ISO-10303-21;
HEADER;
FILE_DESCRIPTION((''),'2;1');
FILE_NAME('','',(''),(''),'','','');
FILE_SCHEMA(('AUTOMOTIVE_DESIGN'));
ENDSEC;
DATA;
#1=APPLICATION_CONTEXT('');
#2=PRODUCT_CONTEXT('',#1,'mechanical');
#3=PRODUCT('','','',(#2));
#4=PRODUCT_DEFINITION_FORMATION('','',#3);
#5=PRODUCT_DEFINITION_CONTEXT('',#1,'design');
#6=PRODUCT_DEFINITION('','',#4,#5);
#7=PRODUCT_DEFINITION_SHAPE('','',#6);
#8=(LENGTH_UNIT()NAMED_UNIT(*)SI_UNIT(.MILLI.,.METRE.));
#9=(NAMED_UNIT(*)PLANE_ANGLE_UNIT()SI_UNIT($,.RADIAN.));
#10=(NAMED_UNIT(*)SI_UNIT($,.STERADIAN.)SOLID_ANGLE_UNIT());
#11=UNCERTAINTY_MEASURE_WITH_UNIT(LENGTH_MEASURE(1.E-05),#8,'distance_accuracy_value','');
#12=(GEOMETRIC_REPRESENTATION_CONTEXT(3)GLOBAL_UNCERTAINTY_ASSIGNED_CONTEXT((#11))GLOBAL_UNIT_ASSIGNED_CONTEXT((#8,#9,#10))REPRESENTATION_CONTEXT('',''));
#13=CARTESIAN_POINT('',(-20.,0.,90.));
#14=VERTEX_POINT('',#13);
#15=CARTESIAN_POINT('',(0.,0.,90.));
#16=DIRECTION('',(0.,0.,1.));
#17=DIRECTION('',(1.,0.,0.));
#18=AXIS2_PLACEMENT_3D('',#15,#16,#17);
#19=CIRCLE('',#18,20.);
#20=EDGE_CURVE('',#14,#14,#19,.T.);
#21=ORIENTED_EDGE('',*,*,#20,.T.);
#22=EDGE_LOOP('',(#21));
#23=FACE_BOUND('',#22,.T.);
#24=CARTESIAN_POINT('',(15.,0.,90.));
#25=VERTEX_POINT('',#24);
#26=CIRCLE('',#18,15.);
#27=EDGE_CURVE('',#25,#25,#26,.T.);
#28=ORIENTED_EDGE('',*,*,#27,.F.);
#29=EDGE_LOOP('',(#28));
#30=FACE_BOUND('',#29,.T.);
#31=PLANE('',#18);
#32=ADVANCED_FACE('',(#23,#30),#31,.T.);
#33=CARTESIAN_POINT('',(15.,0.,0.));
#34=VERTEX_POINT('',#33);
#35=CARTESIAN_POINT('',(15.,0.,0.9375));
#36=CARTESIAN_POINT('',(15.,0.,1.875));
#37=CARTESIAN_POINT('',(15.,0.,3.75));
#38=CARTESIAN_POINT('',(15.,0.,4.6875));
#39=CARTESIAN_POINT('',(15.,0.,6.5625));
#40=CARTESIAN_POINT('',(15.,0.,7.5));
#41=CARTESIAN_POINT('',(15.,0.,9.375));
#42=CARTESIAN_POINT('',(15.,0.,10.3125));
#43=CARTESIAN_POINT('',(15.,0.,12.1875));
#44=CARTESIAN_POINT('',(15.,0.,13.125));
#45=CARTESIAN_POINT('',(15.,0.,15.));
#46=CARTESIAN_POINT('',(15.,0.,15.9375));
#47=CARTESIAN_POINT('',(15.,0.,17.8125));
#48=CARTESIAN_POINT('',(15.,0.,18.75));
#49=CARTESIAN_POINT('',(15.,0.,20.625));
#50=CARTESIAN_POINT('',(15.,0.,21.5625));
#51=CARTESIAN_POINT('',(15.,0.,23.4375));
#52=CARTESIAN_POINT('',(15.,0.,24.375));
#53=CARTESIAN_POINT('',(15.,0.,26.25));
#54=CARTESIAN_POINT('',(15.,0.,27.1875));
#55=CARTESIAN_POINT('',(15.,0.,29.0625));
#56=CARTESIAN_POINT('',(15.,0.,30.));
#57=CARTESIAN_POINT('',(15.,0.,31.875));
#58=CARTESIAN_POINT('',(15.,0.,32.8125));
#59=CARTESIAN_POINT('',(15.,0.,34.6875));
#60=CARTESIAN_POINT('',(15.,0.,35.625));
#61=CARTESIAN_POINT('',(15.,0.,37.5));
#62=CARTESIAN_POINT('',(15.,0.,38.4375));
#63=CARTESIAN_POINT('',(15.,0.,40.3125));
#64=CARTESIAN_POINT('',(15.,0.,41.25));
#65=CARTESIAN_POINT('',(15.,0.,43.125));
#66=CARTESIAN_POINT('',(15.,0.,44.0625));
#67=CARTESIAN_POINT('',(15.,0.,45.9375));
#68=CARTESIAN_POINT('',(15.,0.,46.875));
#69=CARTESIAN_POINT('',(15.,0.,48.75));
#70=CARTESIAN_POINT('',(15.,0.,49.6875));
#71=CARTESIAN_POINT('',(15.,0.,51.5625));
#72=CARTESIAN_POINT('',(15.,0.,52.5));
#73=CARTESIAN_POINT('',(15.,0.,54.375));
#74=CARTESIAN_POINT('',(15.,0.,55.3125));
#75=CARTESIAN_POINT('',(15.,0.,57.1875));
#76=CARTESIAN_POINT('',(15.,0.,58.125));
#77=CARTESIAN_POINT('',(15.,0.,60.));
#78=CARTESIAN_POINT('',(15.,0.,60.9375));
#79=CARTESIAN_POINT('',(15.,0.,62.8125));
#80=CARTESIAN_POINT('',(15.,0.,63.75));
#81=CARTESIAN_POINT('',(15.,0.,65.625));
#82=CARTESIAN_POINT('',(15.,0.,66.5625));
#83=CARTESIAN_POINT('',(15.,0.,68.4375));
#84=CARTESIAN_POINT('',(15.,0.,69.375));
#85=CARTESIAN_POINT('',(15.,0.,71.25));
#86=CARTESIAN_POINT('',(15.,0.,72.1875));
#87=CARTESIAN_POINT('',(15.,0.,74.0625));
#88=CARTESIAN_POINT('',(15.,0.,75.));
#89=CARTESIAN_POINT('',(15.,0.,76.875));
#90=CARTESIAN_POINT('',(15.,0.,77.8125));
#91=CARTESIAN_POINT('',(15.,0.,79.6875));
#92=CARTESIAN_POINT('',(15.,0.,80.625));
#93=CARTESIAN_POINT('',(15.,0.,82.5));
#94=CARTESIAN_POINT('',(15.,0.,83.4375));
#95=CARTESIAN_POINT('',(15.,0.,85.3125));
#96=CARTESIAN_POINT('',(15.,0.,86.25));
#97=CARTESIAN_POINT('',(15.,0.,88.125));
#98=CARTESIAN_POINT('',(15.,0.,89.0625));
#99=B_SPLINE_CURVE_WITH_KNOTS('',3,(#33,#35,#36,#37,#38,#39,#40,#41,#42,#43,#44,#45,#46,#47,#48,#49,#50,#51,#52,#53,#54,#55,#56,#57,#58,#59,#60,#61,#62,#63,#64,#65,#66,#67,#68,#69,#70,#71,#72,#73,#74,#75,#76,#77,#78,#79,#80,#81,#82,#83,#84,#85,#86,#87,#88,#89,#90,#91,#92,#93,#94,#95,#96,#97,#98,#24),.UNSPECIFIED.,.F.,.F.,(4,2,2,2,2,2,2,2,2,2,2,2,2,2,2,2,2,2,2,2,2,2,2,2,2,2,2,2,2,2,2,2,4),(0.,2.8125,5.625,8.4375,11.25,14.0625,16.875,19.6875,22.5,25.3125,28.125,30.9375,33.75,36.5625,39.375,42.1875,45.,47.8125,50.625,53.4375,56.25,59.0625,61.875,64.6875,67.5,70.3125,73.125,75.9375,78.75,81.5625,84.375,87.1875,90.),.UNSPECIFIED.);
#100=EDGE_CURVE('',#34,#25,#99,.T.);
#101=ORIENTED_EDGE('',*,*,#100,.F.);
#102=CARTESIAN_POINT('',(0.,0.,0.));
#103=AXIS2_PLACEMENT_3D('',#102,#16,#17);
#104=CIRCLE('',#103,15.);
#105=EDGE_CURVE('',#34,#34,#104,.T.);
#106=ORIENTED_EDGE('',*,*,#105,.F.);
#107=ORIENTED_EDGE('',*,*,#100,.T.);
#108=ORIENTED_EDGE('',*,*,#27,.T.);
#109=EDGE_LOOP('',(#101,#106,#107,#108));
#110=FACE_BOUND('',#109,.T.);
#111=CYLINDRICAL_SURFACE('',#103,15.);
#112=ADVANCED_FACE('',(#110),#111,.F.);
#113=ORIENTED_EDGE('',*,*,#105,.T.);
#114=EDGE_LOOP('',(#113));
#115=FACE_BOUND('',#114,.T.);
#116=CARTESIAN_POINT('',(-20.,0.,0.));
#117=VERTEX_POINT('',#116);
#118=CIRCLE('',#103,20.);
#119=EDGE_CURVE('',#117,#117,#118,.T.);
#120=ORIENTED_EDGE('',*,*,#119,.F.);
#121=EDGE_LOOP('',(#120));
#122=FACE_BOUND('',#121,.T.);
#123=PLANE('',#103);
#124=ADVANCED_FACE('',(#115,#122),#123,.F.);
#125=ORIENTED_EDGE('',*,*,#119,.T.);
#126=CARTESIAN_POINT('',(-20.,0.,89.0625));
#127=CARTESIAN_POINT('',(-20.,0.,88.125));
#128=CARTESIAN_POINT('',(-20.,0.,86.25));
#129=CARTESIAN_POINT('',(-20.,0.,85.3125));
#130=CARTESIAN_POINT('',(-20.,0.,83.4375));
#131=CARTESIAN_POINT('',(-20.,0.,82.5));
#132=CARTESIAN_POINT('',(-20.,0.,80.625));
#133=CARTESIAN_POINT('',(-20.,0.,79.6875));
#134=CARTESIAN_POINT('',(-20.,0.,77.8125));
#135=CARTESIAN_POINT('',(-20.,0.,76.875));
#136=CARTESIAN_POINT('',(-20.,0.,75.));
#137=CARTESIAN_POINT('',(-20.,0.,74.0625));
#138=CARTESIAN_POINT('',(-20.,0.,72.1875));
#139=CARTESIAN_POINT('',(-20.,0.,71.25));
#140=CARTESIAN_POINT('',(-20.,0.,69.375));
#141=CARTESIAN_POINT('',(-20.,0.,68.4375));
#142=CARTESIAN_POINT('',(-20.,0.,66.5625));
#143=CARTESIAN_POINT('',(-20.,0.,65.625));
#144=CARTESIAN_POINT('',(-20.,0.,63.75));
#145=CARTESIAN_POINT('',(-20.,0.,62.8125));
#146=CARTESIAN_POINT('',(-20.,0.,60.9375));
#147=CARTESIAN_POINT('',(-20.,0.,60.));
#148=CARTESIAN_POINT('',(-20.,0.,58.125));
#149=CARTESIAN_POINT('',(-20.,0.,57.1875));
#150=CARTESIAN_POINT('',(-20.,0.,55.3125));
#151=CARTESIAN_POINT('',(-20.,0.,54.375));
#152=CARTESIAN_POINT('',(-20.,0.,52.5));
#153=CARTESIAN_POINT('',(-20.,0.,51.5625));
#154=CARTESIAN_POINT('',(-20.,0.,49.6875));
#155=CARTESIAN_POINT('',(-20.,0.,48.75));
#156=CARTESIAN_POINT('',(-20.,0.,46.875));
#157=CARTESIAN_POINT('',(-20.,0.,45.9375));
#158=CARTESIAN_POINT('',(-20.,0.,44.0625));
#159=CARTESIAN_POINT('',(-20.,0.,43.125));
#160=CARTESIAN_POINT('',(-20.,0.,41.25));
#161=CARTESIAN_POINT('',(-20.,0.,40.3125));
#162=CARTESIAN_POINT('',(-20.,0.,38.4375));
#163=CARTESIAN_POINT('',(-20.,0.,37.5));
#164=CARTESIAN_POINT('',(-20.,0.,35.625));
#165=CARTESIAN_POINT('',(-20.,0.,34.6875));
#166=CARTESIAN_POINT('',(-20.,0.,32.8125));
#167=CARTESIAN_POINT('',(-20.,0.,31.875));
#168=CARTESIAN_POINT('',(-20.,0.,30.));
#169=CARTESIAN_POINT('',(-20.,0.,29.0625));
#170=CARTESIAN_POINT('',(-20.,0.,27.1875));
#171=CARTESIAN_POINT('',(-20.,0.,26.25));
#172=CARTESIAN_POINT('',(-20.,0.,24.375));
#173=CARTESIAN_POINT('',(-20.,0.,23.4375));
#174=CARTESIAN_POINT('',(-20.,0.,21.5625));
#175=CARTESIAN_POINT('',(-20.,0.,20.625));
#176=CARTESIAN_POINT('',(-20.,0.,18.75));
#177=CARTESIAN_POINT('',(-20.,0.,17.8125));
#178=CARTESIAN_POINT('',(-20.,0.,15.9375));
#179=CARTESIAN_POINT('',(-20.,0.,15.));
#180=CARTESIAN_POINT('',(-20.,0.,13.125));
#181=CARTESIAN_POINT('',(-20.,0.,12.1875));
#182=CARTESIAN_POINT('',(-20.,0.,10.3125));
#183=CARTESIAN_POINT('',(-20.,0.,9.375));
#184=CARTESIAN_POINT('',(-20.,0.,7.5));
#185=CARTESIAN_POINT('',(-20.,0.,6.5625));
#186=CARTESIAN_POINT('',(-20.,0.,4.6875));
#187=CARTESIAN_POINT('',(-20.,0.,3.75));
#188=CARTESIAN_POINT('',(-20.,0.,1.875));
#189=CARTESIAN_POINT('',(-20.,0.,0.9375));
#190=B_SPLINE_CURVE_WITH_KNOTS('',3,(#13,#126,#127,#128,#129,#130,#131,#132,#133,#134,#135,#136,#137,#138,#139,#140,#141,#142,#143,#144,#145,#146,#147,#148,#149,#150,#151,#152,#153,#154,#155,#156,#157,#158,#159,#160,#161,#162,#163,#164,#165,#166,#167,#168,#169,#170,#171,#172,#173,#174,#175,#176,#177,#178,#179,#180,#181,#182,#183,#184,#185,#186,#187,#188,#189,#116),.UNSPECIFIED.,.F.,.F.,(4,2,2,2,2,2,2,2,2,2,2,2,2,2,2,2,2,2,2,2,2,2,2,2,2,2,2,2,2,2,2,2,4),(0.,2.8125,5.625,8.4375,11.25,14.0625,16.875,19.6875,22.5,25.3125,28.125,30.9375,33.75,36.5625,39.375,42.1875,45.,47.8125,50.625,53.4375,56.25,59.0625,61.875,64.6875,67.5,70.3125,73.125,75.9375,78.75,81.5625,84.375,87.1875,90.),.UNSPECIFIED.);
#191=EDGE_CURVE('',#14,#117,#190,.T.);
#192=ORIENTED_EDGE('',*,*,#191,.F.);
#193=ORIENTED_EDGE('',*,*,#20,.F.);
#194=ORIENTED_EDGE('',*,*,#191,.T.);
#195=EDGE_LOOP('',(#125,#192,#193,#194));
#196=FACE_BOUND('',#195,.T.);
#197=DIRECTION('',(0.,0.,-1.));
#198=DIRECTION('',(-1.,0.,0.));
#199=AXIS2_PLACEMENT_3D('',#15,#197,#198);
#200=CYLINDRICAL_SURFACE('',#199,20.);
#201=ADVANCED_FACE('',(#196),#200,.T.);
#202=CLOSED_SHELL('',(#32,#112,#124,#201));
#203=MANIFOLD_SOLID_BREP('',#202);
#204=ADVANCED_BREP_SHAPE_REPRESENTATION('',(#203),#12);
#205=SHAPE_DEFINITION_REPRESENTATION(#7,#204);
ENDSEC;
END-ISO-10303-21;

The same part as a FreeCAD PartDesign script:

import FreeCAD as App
import Part
import Sketcher

V = App.Vector

doc = App.newDocument("Part")
body = doc.addObject("PartDesign::Body", "Body")

# Sketch on XY plane
sketch1 = body.newObject("Sketcher::SketchObject", "Sketch")
sketch1.AttachmentSupport = (doc.getObject("XY_Plane"), [""])
sketch1.MapMode = "FlatFace"
sketch1.addGeometry(Part.Circle(V(0, 0, 0), V(0, 0, 1), 20), False)
sketch1.addConstraint([
    Sketcher.Constraint("Coincident", 0, 3, -1, 1),
    Sketcher.Constraint("Diameter", 0, 40.0),
])
pad1 = body.newObject("PartDesign::Pad", "Pad")
pad1.Profile = sketch1
pad1.Length = 90

# Sketch on XY plane
sketch2 = body.newObject("Sketcher::SketchObject", "Sketch001")
sketch2.AttachmentSupport = (doc.getObject("XY_Plane"), [""])
sketch2.MapMode = "FlatFace"
sketch2.AttachmentOffset = App.Placement(V(0, 0, 90), App.Rotation())
sketch2.addGeometry(Part.Circle(V(0, 0, 0), V(0, 0, 1), 15), False)
sketch2.addConstraint([
    Sketcher.Constraint("Coincident", 0, 3, -1, 1),
    Sketcher.Constraint("Diameter", 0, 30.0),
])
pocket1 = body.newObject("PartDesign::Pocket", "Pocket")
pocket1.Profile = sketch2
pocket1.Length = 90

doc.recompute()
